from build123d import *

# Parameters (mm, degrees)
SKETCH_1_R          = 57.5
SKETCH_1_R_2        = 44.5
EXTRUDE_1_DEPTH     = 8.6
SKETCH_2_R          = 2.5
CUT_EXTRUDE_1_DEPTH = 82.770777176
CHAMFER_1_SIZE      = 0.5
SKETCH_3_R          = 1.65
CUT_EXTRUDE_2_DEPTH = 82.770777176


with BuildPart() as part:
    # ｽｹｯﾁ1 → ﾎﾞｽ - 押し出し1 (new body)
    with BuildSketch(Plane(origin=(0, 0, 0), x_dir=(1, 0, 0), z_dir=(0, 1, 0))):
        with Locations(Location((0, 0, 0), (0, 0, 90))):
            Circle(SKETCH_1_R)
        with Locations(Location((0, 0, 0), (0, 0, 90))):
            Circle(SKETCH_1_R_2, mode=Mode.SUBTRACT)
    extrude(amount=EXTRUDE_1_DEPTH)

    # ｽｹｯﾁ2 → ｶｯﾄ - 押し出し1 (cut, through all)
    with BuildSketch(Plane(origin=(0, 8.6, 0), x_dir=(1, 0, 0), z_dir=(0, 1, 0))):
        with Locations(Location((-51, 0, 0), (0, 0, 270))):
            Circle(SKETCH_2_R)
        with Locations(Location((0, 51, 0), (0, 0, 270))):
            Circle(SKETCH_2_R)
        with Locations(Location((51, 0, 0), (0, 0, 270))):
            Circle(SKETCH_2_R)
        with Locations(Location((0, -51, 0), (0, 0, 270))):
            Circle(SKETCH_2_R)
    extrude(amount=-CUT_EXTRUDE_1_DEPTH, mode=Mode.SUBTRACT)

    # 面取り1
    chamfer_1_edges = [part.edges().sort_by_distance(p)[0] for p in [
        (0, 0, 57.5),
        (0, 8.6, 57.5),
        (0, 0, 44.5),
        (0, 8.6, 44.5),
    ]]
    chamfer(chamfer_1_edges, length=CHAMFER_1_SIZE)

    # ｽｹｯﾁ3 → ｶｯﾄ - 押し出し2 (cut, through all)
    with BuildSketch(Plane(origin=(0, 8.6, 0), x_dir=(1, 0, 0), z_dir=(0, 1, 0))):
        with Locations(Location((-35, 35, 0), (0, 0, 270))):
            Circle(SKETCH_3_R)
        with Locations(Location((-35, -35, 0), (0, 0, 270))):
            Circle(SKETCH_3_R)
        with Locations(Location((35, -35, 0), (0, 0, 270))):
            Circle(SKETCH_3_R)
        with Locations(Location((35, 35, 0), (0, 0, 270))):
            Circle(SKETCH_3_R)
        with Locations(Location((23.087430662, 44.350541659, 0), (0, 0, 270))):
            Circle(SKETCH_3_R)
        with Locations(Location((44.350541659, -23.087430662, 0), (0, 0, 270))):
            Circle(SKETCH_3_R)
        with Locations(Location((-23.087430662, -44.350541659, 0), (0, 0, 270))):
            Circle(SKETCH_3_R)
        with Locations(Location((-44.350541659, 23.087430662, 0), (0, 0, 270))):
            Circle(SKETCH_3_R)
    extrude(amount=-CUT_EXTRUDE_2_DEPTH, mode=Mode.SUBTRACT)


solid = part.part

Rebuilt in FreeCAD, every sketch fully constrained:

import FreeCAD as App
import Part
import Sketcher
from FreeCAD import Vector
Q = App.Units.Quantity


def edges_at(feature, points):
    """Names of the edges that pass closest to the given points."""
    edges = feature.Shape.Edges
    near = lambda p: min(range(len(edges)), key=lambda i: edges[i].distToShape(Part.Vertex(*p))[0])
    return sorted({f"Edge{near(p) + 1}" for p in points})

doc = App.newDocument("Part")
params = doc.addObject("Spreadsheet::Sheet", "Params")
for row, (alias, value) in enumerate([
    ("sketch1_diameter", "115 mm"),
    ("sketch1_diameter2", "89 mm"),
    ("pad1_length", "8.6 mm"),
    ("sketch2_diameter", "5 mm"),
    ("chamfer_size", "0.5 mm"),
    ("sketch3_diameter", "3.3 mm"),
], start=1):
    params.set(f"A{row}", alias)
    params.set(f"B{row}", "=" + value)
    params.setAlias(f"B{row}", alias)

body = doc.addObject("PartDesign::Body", "Body")

sketch1 = doc.addObject("Sketcher::SketchObject", "Sketch")
body.addObject(sketch1)
sketch1.AttachmentSupport = (doc.XZ_Plane, [""])
sketch1.MapMode = "FlatFace"
sketch1.addGeometry(Part.Circle(Vector(0, 0, 0), Vector(0, 0, 1), 58), False)
sketch1.addGeometry(Part.Circle(Vector(0, 0, 0), Vector(0, 0, 1), 44), False)
sketch1.addConstraint(Sketcher.Constraint("Coincident", 0, 3, -1, 1))
sketch1.addConstraint(Sketcher.Constraint("Coincident", 1, 3, -1, 1))
sketch1.addConstraint(Sketcher.Constraint("Diameter", 0, Q("115 mm")))
sketch1.addConstraint(Sketcher.Constraint("Diameter", 1, Q("89 mm")))
sketch1.setExpression("Constraints[2]", "Params.sketch1_diameter")
sketch1.setExpression("Constraints[3]", "Params.sketch1_diameter2")
pad1 = doc.addObject("PartDesign::Pad", "Pad")
body.addObject(pad1)
pad1.Profile = sketch1
pad1.setExpression("Length", "Params.pad1_length")
pad1.Reversed = True

sketch2 = doc.addObject("Sketcher::SketchObject", "Sketch001")
body.addObject(sketch2)
sketch2.AttachmentSupport = (doc.XZ_Plane, [""])
sketch2.MapMode = "FlatFace"
sketch2.AttachmentOffset = App.Placement(Vector(0, 0, -8.6), App.Rotation())
sketch2.addGeometry(Part.Circle(Vector(-51, 0, 0), Vector(0, 0, 1), 2.5), False)
sketch2.addGeometry(Part.Circle(Vector(0, -51, 0), Vector(0, 0, 1), 2.5), False)
sketch2.addGeometry(Part.Circle(Vector(51, 0, 0), Vector(0, 0, 1), 2.5), False)
sketch2.addGeometry(Part.Circle(Vector(0, 51, 0), Vector(0, 0, 1), 2.5), False)
sketch2.addConstraint(Sketcher.Constraint("Equal", 0, 1))
sketch2.addConstraint(Sketcher.Constraint("Equal", 1, 2))
sketch2.addConstraint(Sketcher.Constraint("Equal", 2, 3))
sketch2.addConstraint(Sketcher.Constraint("Symmetric", 0, 3, 2, 3, -1, 1))
sketch2.addConstraint(Sketcher.Constraint("Symmetric", 1, 3, 3, 3, -1, 1))
sketch2.addConstraint(Sketcher.Constraint("PointOnObject", 0, 3, -1))
sketch2.addConstraint(Sketcher.Constraint("PointOnObject", 1, 3, -2))
sketch2.addConstraint(Sketcher.Constraint("Diameter", 0, Q("5 mm")))
sketch2.addConstraint(Sketcher.Constraint("DistanceX", 0, 3, -1, 1, Q("51 mm")))
sketch2.addConstraint(Sketcher.Constraint("DistanceY", 1, 3, -1, 1, Q("51 mm")))
sketch2.setExpression("Constraints[7]", "Params.sketch2_diameter")
pocket1 = doc.addObject("PartDesign::Pocket", "Pocket")
body.addObject(pocket1)
pocket1.Profile = sketch2
pocket1.Type = "ThroughAll"
pocket1.Reversed = True
doc.recompute()

chamfer = doc.addObject("PartDesign::Chamfer", "Chamfer")
body.addObject(chamfer)
chamfer.Base = (pocket1, edges_at(pocket1, [
    (0, 0, 57.5),
    (0, 8.6, 57.5),
    (0, 0, 44.5),
    (0, 8.6, 44.5),
]))
chamfer.setExpression("Size", "Params.chamfer_size")

sketch3 = doc.addObject("Sketcher::SketchObject", "Sketch002")
body.addObject(sketch3)
sketch3.AttachmentSupport = (doc.XZ_Plane, [""])
sketch3.MapMode = "FlatFace"
sketch3.AttachmentOffset = App.Placement(Vector(0, 0, -8.6), App.Rotation())
sketch3.addGeometry(Part.Circle(Vector(-35, -35, 0), Vector(0, 0, 1), 1.6), False)
sketch3.addGeometry(Part.Circle(Vector(-35, 35, 0), Vector(0, 0, 1), 1.6), False)
sketch3.addGeometry(Part.Circle(Vector(35, 35, 0), Vector(0, 0, 1), 1.6), False)
sketch3.addGeometry(Part.Circle(Vector(35, -35, 0), Vector(0, 0, 1), 1.6), False)
sketch3.addGeometry(Part.Circle(Vector(23.1, -44.4, 0), Vector(0, 0, 1), 1.6), False)
sketch3.addGeometry(Part.Circle(Vector(44.4, 23.1, 0), Vector(0, 0, 1), 1.6), False)
sketch3.addGeometry(Part.Circle(Vector(-23.1, 44.4, 0), Vector(0, 0, 1), 1.6), False)
sketch3.addGeometry(Part.Circle(Vector(-44.4, -23.1, 0), Vector(0, 0, 1), 1.6), False)
sketch3.addConstraint(Sketcher.Constraint("Equal", 0, 1))
sketch3.addConstraint(Sketcher.Constraint("Equal", 1, 2))
sketch3.addConstraint(Sketcher.Constraint("Equal", 2, 3))
sketch3.addConstraint(Sketcher.Constraint("Equal", 3, 4))
sketch3.addConstraint(Sketcher.Constraint("Equal", 4, 5))
sketch3.addConstraint(Sketcher.Constraint("Equal", 5, 6))
sketch3.addConstraint(Sketcher.Constraint("Equal", 6, 7))
sketch3.addConstraint(Sketcher.Constraint("Symmetric", 0, 3, 2, 3, -1, 1))
sketch3.addConstraint(Sketcher.Constraint("Symmetric", 1, 3, 3, 3, -1, 1))
sketch3.addConstraint(Sketcher.Constraint("Symmetric", 4, 3, 6, 3, -1, 1))
sketch3.addConstraint(Sketcher.Constraint("Symmetric", 5, 3, 7, 3, -1, 1))
sketch3.addConstraint(Sketcher.Constraint("Symmetric", 1, 3, 2, 3, -2))
sketch3.addConstraint(Sketcher.Constraint("Diameter", 0, Q("3.3 mm")))
sketch3.addConstraint(Sketcher.Constraint("DistanceX", 0, 3, -1, 1, Q("35 mm")))
sketch3.addConstraint(Sketcher.Constraint("DistanceY", 0, 3, -1, 1, Q("35 mm")))
sketch3.addConstraint(Sketcher.Constraint("DistanceX", -1, 1, 4, 3, Q("23.087431 mm")))
sketch3.addConstraint(Sketcher.Constraint("DistanceY", 4, 3, -1, 1, Q("44.350542 mm")))
sketch3.addConstraint(Sketcher.Constraint("DistanceX", -1, 1, 5, 3, Q("44.350542 mm")))
sketch3.addConstraint(Sketcher.Constraint("DistanceY", -1, 1, 5, 3, Q("23.087431 mm")))
sketch3.setExpression("Constraints[12]", "Params.sketch3_diameter")
pocket2 = doc.addObject("PartDesign::Pocket", "Pocket001")
body.addObject(pocket2)
pocket2.Profile = sketch3
pocket2.Type = "ThroughAll"
pocket2.Reversed = True

doc.recompute()
